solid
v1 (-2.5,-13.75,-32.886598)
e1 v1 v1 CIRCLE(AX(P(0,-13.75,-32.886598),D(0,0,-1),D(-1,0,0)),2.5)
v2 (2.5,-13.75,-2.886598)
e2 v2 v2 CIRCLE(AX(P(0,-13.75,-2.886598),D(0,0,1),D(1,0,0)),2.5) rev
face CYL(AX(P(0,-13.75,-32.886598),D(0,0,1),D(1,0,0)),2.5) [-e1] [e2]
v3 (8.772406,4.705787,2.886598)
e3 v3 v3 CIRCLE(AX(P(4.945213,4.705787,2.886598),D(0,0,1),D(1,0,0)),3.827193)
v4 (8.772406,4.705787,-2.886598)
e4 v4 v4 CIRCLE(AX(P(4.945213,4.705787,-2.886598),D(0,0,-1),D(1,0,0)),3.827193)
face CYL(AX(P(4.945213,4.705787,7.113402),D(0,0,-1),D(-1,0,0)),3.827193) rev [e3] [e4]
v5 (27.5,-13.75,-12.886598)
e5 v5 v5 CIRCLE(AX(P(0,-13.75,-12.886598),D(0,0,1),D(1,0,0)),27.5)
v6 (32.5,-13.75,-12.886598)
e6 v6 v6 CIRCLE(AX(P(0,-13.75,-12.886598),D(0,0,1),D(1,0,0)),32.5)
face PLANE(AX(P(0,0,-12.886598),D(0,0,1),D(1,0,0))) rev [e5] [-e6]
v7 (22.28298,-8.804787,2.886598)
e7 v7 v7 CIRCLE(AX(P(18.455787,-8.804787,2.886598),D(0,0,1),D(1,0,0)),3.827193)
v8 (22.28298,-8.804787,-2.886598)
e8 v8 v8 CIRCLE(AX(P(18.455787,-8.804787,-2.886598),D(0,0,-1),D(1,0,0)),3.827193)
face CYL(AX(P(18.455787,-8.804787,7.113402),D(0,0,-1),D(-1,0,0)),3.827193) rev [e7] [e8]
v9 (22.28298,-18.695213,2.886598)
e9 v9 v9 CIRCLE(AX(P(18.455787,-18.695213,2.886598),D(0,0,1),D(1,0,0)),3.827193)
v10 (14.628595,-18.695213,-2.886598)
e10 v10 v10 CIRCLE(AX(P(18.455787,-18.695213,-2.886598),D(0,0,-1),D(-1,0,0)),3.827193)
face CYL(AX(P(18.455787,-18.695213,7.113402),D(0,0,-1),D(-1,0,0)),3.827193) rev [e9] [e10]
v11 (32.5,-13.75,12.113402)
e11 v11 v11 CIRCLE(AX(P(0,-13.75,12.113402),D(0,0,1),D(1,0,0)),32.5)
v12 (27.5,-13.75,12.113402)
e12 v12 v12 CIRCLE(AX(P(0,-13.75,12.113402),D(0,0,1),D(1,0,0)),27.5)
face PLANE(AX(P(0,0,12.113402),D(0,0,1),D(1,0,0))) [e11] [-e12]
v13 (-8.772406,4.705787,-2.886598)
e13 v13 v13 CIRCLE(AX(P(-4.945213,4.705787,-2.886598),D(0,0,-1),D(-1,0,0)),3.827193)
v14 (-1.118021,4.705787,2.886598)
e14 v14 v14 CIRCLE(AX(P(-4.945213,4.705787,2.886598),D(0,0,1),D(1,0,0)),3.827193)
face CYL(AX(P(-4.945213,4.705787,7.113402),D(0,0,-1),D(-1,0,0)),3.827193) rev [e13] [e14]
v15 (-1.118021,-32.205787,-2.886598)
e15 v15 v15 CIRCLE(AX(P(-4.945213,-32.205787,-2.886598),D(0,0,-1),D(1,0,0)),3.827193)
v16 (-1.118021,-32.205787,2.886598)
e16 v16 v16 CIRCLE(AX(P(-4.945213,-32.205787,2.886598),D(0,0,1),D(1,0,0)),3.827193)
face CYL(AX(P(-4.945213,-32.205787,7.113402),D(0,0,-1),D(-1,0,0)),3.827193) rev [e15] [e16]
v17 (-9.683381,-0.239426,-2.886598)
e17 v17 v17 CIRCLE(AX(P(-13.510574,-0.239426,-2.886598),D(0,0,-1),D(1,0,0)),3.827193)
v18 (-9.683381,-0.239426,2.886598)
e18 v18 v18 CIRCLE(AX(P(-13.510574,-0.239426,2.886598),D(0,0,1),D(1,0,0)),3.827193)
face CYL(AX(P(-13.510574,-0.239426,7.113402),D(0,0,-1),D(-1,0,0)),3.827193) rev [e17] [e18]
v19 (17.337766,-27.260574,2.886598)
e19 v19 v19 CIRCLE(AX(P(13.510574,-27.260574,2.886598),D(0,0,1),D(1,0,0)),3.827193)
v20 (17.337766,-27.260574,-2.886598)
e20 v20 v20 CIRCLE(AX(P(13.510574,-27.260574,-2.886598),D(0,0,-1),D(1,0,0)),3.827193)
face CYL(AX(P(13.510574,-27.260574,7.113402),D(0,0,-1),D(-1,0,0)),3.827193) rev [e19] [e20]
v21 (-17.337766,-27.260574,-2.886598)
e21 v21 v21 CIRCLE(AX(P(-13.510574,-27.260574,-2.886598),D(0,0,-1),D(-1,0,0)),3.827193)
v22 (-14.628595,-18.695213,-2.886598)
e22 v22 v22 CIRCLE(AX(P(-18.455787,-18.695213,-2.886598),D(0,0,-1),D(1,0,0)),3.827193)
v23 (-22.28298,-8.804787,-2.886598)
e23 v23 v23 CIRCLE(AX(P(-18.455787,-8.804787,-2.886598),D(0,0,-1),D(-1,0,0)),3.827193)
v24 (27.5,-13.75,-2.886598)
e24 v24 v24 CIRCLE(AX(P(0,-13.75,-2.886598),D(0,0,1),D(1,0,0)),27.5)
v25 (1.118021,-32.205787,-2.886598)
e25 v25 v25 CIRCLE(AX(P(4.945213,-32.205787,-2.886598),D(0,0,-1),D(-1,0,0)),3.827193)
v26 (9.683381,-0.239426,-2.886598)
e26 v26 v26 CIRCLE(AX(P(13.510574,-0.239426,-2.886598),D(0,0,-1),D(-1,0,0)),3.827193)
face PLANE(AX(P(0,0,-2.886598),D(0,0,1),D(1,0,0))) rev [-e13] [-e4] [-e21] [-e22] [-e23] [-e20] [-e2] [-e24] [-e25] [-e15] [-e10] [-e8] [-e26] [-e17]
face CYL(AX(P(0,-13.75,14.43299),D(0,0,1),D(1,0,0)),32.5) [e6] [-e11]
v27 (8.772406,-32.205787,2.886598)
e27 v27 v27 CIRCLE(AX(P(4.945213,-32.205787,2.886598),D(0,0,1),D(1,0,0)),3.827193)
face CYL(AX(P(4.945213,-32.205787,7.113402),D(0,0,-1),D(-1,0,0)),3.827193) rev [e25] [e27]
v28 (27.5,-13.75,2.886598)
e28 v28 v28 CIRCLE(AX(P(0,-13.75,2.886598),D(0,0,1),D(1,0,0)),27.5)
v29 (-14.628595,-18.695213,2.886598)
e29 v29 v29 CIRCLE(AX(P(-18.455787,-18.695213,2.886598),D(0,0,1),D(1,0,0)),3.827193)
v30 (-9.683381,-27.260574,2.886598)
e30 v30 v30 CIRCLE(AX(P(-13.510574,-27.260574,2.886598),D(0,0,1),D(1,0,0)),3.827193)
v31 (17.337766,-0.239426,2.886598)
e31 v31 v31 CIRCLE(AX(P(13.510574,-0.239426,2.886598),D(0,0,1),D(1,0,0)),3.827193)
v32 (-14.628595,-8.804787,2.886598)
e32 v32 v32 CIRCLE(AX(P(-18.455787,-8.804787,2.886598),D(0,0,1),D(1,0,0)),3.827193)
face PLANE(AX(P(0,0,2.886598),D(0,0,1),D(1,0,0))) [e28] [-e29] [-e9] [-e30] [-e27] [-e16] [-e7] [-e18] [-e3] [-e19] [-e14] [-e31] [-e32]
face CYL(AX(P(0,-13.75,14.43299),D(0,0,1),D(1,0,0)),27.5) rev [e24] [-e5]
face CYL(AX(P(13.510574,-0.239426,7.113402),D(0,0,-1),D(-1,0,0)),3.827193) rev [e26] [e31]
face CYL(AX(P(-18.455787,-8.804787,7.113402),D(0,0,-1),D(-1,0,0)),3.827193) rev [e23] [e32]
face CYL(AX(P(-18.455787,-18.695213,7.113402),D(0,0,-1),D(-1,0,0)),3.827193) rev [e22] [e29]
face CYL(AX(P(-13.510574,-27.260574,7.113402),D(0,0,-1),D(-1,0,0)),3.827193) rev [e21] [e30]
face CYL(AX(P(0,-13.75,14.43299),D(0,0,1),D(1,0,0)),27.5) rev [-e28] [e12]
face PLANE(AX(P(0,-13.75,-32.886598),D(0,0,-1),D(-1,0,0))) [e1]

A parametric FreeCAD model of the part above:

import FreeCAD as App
import Part
import Sketcher
from FreeCAD import Vector
Q = App.Units.Quantity


def add_polygon(sketch, points):
    """Adds a closed chain of lines whose ends are joined by coincident constraints."""
    first, n = sketch.GeometryCount, len(points)
    for a, b in zip(points, points[1:] + points[:1]):
        sketch.addGeometry(Part.LineSegment(App.Vector(*a, 0), App.Vector(*b, 0)), False)
    for i in range(n):
        sketch.addConstraint(Sketcher.Constraint("Coincident", first + i, 2, first + (i + 1) % n, 1))

doc = App.newDocument("Part")
params = doc.addObject("Spreadsheet::Sheet", "Params")
for row, (alias, value) in enumerate([
    ("sketch1_width", "5 mm"),
    ("sketch1_height", "25 mm"),
    ("sketch1_height2", "10 mm"),
    ("sketch1_width2", "27.5 mm"),
    ("revolution_angle", "360 deg"),
    ("pocket1_length", "10 mm"),
    ("sketch3_diameter", "5 mm"),
    ("pad1_length", "30 mm"),
], start=1):
    params.set(f"A{row}", alias)
    params.set(f"B{row}", "=" + value)
    params.setAlias(f"B{row}", alias)

body = doc.addObject("PartDesign::Body", "Body")

sketch1 = body.newObject("Sketcher::SketchObject", "Sketch")
sketch1.AttachmentSupport = (doc.getObject("YZ_Plane"), [""])
sketch1.MapMode = "FlatFace"
add_polygon(sketch1, [(14, -13), (19, -13), (19, 12), (14, 12), (14, 3), (-14, 3), (-14, -3), (14, -3)])
sketch1.addGeometry(Part.LineSegment(Vector(-14, 12, 0), Vector(-14, -13, 0)), True)
sketch1.addConstraint([
    Sketcher.Constraint("Horizontal", 0),
    Sketcher.Constraint("Vertical", 1),
    Sketcher.Constraint("Horizontal", 2),
    Sketcher.Constraint("Vertical", 3),
    Sketcher.Constraint("Horizontal", 4),
    Sketcher.Constraint("Vertical", 5),
    Sketcher.Constraint("Horizontal", 6),
    Sketcher.Constraint("Vertical", 7),
    Sketcher.Constraint("Vertical", 8),
    Sketcher.Constraint("Symmetric", 3, 2, 5, 2, -1, 1),
    Sketcher.Constraint("Symmetric", 2, 2, 8, 1, -2),
    Sketcher.Constraint("Symmetric", 7, 2, 8, 2, -2),
    Sketcher.Constraint("DistanceX", 0, 1, 0, 2, Q("5 mm")),
    Sketcher.Constraint("DistanceY", 1, 1, 1, 2, Q("25 mm")),
    Sketcher.Constraint("DistanceY", 7, 2, 7, 1, Q("10 mm")),
    Sketcher.Constraint("DistanceX", 4, 2, 4, 1, Q("27.5 mm")),
    Sketcher.Constraint("DistanceY", 3, 2, 3, 1, Q("9.226804 mm")),
])
sketch1.setExpression("Constraints[20]", "Params.sketch1_width")
sketch1.setExpression("Constraints[21]", "Params.sketch1_height")
sketch1.setExpression("Constraints[22]", "Params.sketch1_height2")
sketch1.setExpression("Constraints[23]", "Params.sketch1_width2")
revolution = body.newObject("PartDesign::Revolution", "Revolution")
revolution.Profile = sketch1
revolution.ReferenceAxis = (sketch1, ["Axis0"])
revolution.setExpression("Angle", "Params.revolution_angle")

sketch2 = body.newObject("Sketcher::SketchObject", "Sketch001")
sketch2.AttachmentSupport = (doc.getObject("XY_Plane"), [""])
sketch2.MapMode = "FlatFace"
sketch2.AttachmentOffset = App.Placement(Vector(0, 0, -2.886598), App.Rotation())
sketch2.addGeometry([
    Part.Circle(Vector(-4.9, 4.7, 0), Vector(0, 0, 1), 3.8),
    Part.Circle(Vector(-13.5, -0.2, 0), Vector(0, 0, 1), 3.8),
    Part.Circle(Vector(-18.5, -8.8, 0), Vector(0, 0, 1), 3.8),
    Part.Circle(Vector(-18.5, -18.7, 0), Vector(0, 0, 1), 3.8),
    Part.Circle(Vector(-13.5, -27.3, 0), Vector(0, 0, 1), 3.8),
    Part.Circle(Vector(-4.9, -32.2, 0), Vector(0, 0, 1), 3.8),
    Part.Circle(Vector(4.9, -32.2, 0), Vector(0, 0, 1), 3.8),
    Part.Circle(Vector(13.5, -27.3, 0), Vector(0, 0, 1), 3.8),
    Part.Circle(Vector(18.5, -18.7, 0), Vector(0, 0, 1), 3.8),
    Part.Circle(Vector(18.5, -8.8, 0), Vector(0, 0, 1), 3.8),
    Part.Circle(Vector(13.5, -0.2, 0), Vector(0, 0, 1), 3.8),
    Part.Circle(Vector(4.9, 4.7, 0), Vector(0, 0, 1), 3.8),
], False)
sketch2.addConstraint([
    Sketcher.Constraint("Equal", 0, 1),
    Sketcher.Constraint("Equal", 1, 2),
    Sketcher.Constraint("Equal", 2, 3),
    Sketcher.Constraint("Equal", 3, 4),
    Sketcher.Constraint("Equal", 4, 5),
    Sketcher.Constraint("Equal", 5, 6),
    Sketcher.Constraint("Equal", 6, 7),
    Sketcher.Constraint("Equal", 7, 8),
    Sketcher.Constraint("Equal", 8, 9),
    Sketcher.Constraint("Equal", 9, 10),
    Sketcher.Constraint("Equal", 10, 11),
    Sketcher.Constraint("Symmetric", 5, 3, 6, 3, -2),
    Sketcher.Constraint("Symmetric", 4, 3, 7, 3, -2),
    Sketcher.Constraint("Symmetric", 3, 3, 8, 3, -2),
    Sketcher.Constraint("Symmetric", 2, 3, 9, 3, -2),
    Sketcher.Constraint("Symmetric", 1, 3, 10, 3, -2),
    Sketcher.Constraint("Symmetric", 0, 3, 11, 3, -2),
    Sketcher.Constraint("Vertical", 2, 3, 3, 3),
    Sketcher.Constraint("Vertical", 1, 3, 4, 3),
    Sketcher.Constraint("Vertical", 0, 3, 5, 3),
    Sketcher.Constraint("Diameter", 0, Q("7.654385 mm")),
    Sketcher.Constraint("DistanceY", 3, 3, 0, 3, Q("23.401 mm")),
    Sketcher.Constraint("DistanceY", 5, 3, 2, 3, Q("23.401 mm")),
    Sketcher.Constraint("DistanceX", 3, 3, 6, 3, Q("23.401 mm")),
    Sketcher.Constraint("DistanceX", 1, 3, 0, 3, Q("8.565361 mm")),
    Sketcher.Constraint("DistanceY", 2, 3, 1, 3, Q("8.565361 mm")),
    Sketcher.Constraint("DistanceY", 4, 3, 3, 3, Q("8.565361 mm")),
    Sketcher.Constraint("DistanceX", 0, 3, -1, 1, Q("4.945213 mm")),
    Sketcher.Constraint("DistanceY", -1, 1, 0, 3, Q("4.705787 mm")),
    Sketcher.Constraint("DistanceY", 1, 3, -1, 1, Q("0.239426 mm")),
])
pocket1 = body.newObject("PartDesign::Pocket", "Pocket")
pocket1.Profile = sketch2
pocket1.setExpression("Length", "Params.pocket1_length")
pocket1.Reversed = True

sketch3 = body.newObject("Sketcher::SketchObject", "Sketch002")
sketch3.AttachmentSupport = (doc.getObject("XY_Plane"), [""])
sketch3.MapMode = "FlatFace"
sketch3.AttachmentOffset = App.Placement(Vector(0, 0, -2.886598), App.Rotation())
sketch3.addGeometry(Part.Circle(Vector(0, -13.8, 0), Vector(0, 0, 1), 2.5), False)
sketch3.addConstraint([
    Sketcher.Constraint("PointOnObject", 0, 3, -2),
    Sketcher.Constraint("Diameter", 0, Q("5 mm")),
    Sketcher.Constraint("DistanceY", 0, 3, -1, 1, Q("13.75 mm")),
])
sketch3.setExpression("Constraints[1]", "Params.sketch3_diameter")
pad1 = body.newObject("PartDesign::Pad", "Pad")
pad1.Profile = sketch3
pad1.setExpression("Length", "Params.pad1_length")
pad1.Reversed = True

doc.recompute()
